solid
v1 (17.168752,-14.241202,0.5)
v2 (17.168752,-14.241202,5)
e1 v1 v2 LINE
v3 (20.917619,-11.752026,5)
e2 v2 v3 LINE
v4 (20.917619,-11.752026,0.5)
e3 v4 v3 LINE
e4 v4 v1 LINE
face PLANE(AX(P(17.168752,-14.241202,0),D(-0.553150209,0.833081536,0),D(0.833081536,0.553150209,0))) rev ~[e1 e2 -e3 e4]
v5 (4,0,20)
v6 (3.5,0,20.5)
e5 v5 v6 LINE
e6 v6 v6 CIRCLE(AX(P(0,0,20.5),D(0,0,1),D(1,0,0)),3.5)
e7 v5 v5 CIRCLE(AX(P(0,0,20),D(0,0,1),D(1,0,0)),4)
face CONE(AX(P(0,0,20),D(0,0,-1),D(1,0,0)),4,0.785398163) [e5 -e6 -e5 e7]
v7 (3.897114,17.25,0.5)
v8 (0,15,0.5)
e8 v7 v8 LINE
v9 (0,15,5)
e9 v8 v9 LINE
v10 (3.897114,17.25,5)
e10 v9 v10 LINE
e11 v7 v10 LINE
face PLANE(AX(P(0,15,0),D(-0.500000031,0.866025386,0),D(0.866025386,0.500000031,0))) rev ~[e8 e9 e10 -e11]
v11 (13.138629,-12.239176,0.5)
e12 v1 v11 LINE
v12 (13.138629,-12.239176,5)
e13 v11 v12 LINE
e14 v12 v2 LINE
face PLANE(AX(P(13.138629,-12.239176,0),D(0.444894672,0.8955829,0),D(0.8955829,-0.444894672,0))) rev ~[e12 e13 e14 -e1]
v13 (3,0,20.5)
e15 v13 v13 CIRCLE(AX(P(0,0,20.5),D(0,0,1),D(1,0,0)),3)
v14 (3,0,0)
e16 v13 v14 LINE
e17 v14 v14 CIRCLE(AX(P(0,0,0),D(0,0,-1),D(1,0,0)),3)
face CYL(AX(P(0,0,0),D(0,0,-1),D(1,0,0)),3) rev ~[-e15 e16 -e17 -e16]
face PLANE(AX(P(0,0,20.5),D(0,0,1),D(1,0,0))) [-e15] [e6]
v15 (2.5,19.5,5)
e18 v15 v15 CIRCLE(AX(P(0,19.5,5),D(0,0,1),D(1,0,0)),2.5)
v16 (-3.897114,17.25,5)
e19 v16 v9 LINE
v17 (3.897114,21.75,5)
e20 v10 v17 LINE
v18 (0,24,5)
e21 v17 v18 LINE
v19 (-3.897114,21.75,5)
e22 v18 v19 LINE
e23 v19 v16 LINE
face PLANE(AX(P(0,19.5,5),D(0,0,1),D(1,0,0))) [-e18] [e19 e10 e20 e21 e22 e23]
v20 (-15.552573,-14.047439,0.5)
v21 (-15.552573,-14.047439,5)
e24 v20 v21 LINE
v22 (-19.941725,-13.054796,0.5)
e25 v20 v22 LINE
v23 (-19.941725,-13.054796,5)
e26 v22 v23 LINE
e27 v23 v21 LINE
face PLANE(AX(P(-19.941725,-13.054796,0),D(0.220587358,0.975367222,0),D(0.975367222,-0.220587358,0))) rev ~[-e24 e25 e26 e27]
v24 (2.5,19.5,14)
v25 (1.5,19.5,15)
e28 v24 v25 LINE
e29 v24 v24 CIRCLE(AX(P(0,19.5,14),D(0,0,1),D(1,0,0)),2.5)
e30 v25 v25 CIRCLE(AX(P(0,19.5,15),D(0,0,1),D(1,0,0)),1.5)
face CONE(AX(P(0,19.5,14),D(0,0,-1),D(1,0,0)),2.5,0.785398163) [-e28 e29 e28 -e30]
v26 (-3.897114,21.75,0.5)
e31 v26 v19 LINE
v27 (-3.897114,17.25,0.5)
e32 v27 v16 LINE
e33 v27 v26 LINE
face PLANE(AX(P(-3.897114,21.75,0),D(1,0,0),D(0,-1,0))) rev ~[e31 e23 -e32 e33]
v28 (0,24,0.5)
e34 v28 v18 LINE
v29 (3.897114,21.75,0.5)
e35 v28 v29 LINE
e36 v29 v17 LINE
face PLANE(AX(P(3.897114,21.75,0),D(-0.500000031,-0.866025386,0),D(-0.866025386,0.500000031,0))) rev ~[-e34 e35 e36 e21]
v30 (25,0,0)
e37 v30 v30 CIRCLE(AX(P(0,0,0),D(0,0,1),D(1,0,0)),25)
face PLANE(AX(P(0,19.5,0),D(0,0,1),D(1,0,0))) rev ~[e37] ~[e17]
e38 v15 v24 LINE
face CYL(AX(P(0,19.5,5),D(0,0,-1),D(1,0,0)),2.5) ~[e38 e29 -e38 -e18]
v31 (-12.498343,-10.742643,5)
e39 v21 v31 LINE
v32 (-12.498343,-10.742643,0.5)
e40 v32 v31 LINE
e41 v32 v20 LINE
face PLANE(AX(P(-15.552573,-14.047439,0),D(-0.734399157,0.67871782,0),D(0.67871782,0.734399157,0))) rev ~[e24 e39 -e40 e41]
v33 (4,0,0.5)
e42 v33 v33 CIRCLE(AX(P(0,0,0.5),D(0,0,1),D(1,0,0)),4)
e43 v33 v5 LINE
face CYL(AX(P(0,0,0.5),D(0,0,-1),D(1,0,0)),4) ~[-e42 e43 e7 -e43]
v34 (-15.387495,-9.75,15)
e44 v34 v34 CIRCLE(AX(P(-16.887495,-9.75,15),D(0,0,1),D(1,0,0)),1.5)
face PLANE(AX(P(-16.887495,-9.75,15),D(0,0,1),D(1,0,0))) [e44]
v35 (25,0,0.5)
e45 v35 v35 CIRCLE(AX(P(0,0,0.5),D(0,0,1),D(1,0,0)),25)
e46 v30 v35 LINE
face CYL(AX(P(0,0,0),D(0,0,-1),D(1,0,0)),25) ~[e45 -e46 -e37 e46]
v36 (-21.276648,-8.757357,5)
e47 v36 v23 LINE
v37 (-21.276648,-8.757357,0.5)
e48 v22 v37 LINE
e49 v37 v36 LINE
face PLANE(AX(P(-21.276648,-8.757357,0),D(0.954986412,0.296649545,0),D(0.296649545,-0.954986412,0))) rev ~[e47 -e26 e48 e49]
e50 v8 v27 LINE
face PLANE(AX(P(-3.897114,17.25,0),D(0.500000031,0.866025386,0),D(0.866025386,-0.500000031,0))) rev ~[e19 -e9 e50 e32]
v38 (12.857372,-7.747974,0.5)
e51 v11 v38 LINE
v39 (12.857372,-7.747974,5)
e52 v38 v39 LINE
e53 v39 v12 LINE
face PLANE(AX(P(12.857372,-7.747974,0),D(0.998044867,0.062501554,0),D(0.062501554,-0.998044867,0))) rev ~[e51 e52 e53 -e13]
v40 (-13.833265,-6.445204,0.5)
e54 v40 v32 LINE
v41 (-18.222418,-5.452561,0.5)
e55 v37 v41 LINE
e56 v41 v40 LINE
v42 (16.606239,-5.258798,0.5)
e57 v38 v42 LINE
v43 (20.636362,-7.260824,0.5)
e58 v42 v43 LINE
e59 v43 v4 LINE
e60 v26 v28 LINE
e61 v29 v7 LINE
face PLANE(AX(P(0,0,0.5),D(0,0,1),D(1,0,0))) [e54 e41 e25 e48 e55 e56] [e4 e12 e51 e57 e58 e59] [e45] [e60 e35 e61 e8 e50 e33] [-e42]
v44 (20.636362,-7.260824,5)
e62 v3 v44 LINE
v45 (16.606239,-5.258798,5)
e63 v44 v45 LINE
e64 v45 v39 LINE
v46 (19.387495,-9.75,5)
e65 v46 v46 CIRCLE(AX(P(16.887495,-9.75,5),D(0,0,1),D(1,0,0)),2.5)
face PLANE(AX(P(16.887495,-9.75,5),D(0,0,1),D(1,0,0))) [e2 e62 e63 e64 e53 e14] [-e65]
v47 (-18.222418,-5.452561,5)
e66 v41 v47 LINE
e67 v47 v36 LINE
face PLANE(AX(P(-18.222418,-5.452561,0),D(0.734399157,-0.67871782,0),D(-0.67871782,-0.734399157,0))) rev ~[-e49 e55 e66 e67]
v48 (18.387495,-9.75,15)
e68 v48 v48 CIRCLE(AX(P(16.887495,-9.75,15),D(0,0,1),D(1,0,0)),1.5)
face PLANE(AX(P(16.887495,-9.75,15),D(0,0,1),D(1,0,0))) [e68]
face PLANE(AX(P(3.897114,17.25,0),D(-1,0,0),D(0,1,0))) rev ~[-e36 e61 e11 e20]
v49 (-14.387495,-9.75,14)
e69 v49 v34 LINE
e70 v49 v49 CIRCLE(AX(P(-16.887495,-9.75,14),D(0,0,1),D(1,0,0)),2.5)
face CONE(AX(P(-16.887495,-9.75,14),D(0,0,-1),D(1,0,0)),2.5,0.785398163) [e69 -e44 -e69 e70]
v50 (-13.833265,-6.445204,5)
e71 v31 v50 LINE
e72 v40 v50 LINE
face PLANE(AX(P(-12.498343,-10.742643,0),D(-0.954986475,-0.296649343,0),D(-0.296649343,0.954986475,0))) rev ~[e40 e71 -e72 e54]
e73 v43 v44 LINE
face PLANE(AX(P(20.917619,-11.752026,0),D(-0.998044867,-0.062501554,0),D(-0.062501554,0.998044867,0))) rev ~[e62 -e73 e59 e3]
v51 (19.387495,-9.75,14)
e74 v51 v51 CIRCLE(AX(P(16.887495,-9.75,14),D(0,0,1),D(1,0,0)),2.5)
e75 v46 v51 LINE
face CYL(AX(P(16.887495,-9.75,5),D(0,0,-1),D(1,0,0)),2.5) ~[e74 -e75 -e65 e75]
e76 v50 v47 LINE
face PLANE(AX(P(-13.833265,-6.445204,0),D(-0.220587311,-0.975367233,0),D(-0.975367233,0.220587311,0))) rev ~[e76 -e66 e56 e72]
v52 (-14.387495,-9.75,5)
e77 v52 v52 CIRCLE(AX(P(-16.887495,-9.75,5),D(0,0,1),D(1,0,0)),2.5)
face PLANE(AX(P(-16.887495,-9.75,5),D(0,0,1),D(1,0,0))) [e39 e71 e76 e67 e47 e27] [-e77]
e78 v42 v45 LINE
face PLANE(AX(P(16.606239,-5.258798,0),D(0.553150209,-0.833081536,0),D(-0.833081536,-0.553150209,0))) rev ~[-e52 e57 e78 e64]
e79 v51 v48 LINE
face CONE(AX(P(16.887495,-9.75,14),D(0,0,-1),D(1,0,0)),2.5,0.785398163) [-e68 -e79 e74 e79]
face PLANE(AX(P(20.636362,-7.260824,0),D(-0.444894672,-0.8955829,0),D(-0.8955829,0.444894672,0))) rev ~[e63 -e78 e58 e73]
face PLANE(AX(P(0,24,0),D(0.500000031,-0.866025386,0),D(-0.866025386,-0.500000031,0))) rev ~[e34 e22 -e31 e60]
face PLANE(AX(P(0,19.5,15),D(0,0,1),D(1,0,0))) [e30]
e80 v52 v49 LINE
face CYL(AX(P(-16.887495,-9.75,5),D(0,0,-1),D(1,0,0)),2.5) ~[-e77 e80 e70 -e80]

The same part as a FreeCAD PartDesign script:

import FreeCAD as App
import Part
import Sketcher
from FreeCAD import Vector
Q = App.Units.Quantity


def edges_at(feature, points):
    """Names of the edges that pass closest to the given points."""
    edges = feature.Shape.Edges
    near = lambda p: min(range(len(edges)), key=lambda i: edges[i].distToShape(Part.Vertex(*p))[0])
    return sorted({f"Edge{near(p) + 1}" for p in points})

doc = App.newDocument("Part")
body = doc.addObject("PartDesign::Body", "Body")

sketch1 = body.newObject("Sketcher::SketchObject", "Sketch")
sketch1.AttachmentSupport = (doc.getObject("XY_Plane"), [""])
sketch1.MapMode = "FlatFace"
sketch1.addGeometry(Part.Circle(Vector(0, 0, 0), Vector(0, 0, 1), 25), False)
sketch1.addConstraint([
    Sketcher.Constraint("Coincident", 0, 3, -1, 1),
    Sketcher.Constraint("Diameter", 0, Q("50 mm")),
])
pad1 = body.newObject("PartDesign::Pad", "Pad")
pad1.Profile = sketch1
pad1.Length = 0.5

sketch2 = body.newObject("Sketcher::SketchObject", "Sketch001")
sketch2.AttachmentSupport = (doc.getObject("XY_Plane"), [""])
sketch2.MapMode = "FlatFace"
sketch2.addGeometry([
    Part.LineSegment(Vector(0, 24, 0), Vector(-3.9, 21.8, 0)),
    Part.LineSegment(Vector(-3.9, 21.8, 0), Vector(-3.9, 17.2, 0)),
    Part.LineSegment(Vector(-3.9, 17.2, 0), Vector(0, 15, 0)),
    Part.LineSegment(Vector(0, 15, 0), Vector(3.9, 17.2, 0)),
    Part.LineSegment(Vector(3.9, 17.2, 0), Vector(3.9, 21.8, 0)),
    Part.LineSegment(Vector(3.9, 21.8, 0), Vector(0, 24, 0)),
    Part.LineSegment(Vector(16.6, -5.3, 0), Vector(12.9, -7.7, 0)),
    Part.LineSegment(Vector(12.9, -7.7, 0), Vector(13.1, -12.2, 0)),
    Part.LineSegment(Vector(13.1, -12.2, 0), Vector(17.2, -14.2, 0)),
    Part.LineSegment(Vector(17.2, -14.2, 0), Vector(20.9, -11.8, 0)),
    Part.LineSegment(Vector(20.9, -11.8, 0), Vector(20.6, -7.3, 0)),
    Part.LineSegment(Vector(20.6, -7.3, 0), Vector(16.6, -5.3, 0)),
    Part.LineSegment(Vector(-18.2, -5.5, 0), Vector(-21.3, -8.8, 0)),
    Part.LineSegment(Vector(-21.3, -8.8, 0), Vector(-19.9, -13.1, 0)),
    Part.LineSegment(Vector(-19.9, -13.1, 0), Vector(-15.6, -14, 0)),
    Part.LineSegment(Vector(-15.6, -14, 0), Vector(-12.5, -10.7, 0)),
    Part.LineSegment(Vector(-12.5, -10.7, 0), Vector(-13.8, -6.4, 0)),
    Part.LineSegment(Vector(-13.8, -6.4, 0), Vector(-18.2, -5.5, 0)),
], False)
sketch2.addConstraint([
    Sketcher.Constraint("Coincident", 0, 2, 1, 1),
    Sketcher.Constraint("Coincident", 1, 2, 2, 1),
    Sketcher.Constraint("Coincident", 2, 2, 3, 1),
    Sketcher.Constraint("Coincident", 3, 2, 4, 1),
    Sketcher.Constraint("Coincident", 4, 2, 5, 1),
    Sketcher.Constraint("Coincident", 5, 2, 0, 1),
    Sketcher.Constraint("Coincident", 6, 2, 7, 1),
    Sketcher.Constraint("Coincident", 7, 2, 8, 1),
    Sketcher.Constraint("Coincident", 8, 2, 9, 1),
    Sketcher.Constraint("Coincident", 9, 2, 10, 1),
    Sketcher.Constraint("Coincident", 10, 2, 11, 1),
    Sketcher.Constraint("Coincident", 11, 2, 6, 1),
    Sketcher.Constraint("Coincident", 12, 2, 13, 1),
    Sketcher.Constraint("Coincident", 13, 2, 14, 1),
    Sketcher.Constraint("Coincident", 14, 2, 15, 1),
    Sketcher.Constraint("Coincident", 15, 2, 16, 1),
    Sketcher.Constraint("Coincident", 16, 2, 17, 1),
    Sketcher.Constraint("Coincident", 17, 2, 12, 1),
    Sketcher.Constraint("Vertical", 1),
    Sketcher.Constraint("Vertical", 4),
    Sketcher.Constraint("Symmetric", 1, 2, 3, 2, -2),
    Sketcher.Constraint("PointOnObject", 2, 2, -2),
    Sketcher.Constraint("PointOnObject", 5, 2, -2),
    Sketcher.Constraint("Parallel", 0, 3),
    Sketcher.Constraint("Parallel", 2, 5),
    Sketcher.Constraint("Parallel", 6, 9),
    Sketcher.Constraint("Parallel", 7, 10),
    Sketcher.Constraint("Parallel", 8, 11),
    Sketcher.Constraint("Parallel", 12, 15),
    Sketcher.Constraint("Parallel", 13, 16),
    Sketcher.Constraint("Parallel", 14, 17),
    Sketcher.Constraint("Equal", 5, 6),
    Sketcher.Constraint("Equal", 6, 7),
    Sketcher.Constraint("Equal", 7, 8),
    Sketcher.Constraint("Equal", 8, 9),
    Sketcher.Constraint("Equal", 11, 12),
    Sketcher.Constraint("Equal", 12, 13),
    Sketcher.Constraint("Equal", 13, 14),
    Sketcher.Constraint("Equal", 14, 15),
    Sketcher.Constraint("Angle", 0, Q("-149.999998 deg")),
    Sketcher.Constraint("DistanceY", 1, 2, 1, 1, Q("4.5 mm")),
    Sketcher.Constraint("DistanceY", -1, 1, 2, 2, Q("15 mm")),
    Sketcher.Constraint("DistanceY", -1, 1, 5, 2, Q("24 mm")),
    Sketcher.Constraint("DistanceX", -1, 1, 7, 2, Q("13.138629 mm")),
    Sketcher.Constraint("DistanceX", -1, 1, 9, 2, Q("20.917619 mm")),
    Sketcher.Constraint("DistanceX", -1, 1, 10, 2, Q("20.636362 mm")),
    Sketcher.Constraint("DistanceX", -1, 1, 11, 2, Q("16.606239 mm")),
    Sketcher.Constraint("DistanceX", 12, 2, -1, 1, Q("21.276648 mm")),
    Sketcher.Constraint("DistanceY", 14, 2, -1, 1, Q("14.047439 mm")),
    Sketcher.Constraint("DistanceX", 17, 2, -1, 1, Q("18.222418 mm")),
    Sketcher.Constraint("DistanceY", 17, 2, -1, 1, Q("5.452561 mm")),
    Sketcher.Constraint("DistanceY", 7, 2, 12, 2, Q("3.481819 mm")),
    Sketcher.Constraint("DistanceY", 13, 2, 12, 2, Q("4.297439 mm")),
])
pad2 = body.newObject("PartDesign::Pad", "Pad001")
pad2.Profile = sketch2
pad2.Length = 5

sketch3 = body.newObject("Sketcher::SketchObject", "Sketch002")
sketch3.AttachmentSupport = (doc.getObject("XY_Plane"), [""])
sketch3.MapMode = "FlatFace"
sketch3.AttachmentOffset = App.Placement(Vector(0, 0, 5), App.Rotation())
sketch3.addGeometry([
    Part.Circle(Vector(0, 19.5, 0), Vector(0, 0, 1), 2.5),
    Part.Circle(Vector(16.9, -9.8, 0), Vector(0, 0, 1), 2.5),
    Part.Circle(Vector(-16.9, -9.8, 0), Vector(0, 0, 1), 2.5),
], False)
sketch3.addConstraint([
    Sketcher.Constraint("Equal", 0, 1),
    Sketcher.Constraint("Equal", 1, 2),
    Sketcher.Constraint("Symmetric", 1, 3, 2, 3, -2),
    Sketcher.Constraint("PointOnObject", 0, 3, -2),
    Sketcher.Constraint("Diameter", 0, Q("5 mm")),
    Sketcher.Constraint("DistanceY", -1, 1, 0, 3, Q("19.5 mm")),
    Sketcher.Constraint("DistanceY", 1, 3, -1, 1, Q("9.75 mm")),
    Sketcher.Constraint("DistanceX", 2, 3, 1, 3, Q("33.77499 mm")),
])
pad3 = body.newObject("PartDesign::Pad", "Pad002")
pad3.Profile = sketch3
pad3.Length = 10

sketch4 = body.newObject("Sketcher::SketchObject", "Sketch003")
sketch4.AttachmentSupport = (doc.getObject("XY_Plane"), [""])
sketch4.MapMode = "FlatFace"
sketch4.AttachmentOffset = App.Placement(Vector(0, 0, 0.5), App.Rotation())
sketch4.addGeometry([
    Part.Circle(Vector(0, 0, 0), Vector(0, 0, 1), 4),
    Part.Circle(Vector(0, 0, 0), Vector(0, 0, 1), 3),
], False)
sketch4.addConstraint([
    Sketcher.Constraint("Coincident", 0, 3, -1, 1),
    Sketcher.Constraint("Coincident", 1, 3, -1, 1),
    Sketcher.Constraint("Diameter", 0, Q("8 mm")),
    Sketcher.Constraint("Diameter", 1, Q("6 mm")),
])
pad4 = body.newObject("PartDesign::Pad", "Pad003")
pad4.Profile = sketch4
pad4.Length = 20

sketch5 = body.newObject("Sketcher::SketchObject", "Sketch004")
sketch5.AttachmentSupport = (doc.getObject("XY_Plane"), [""])
sketch5.MapMode = "FlatFace"
sketch5.addGeometry(Part.Circle(Vector(0, 0, 0), Vector(0, 0, 1), 3), False)
sketch5.addConstraint([
    Sketcher.Constraint("Coincident", 0, 3, -1, 1),
    Sketcher.Constraint("Diameter", 0, Q("6 mm")),
])
pocket1 = body.newObject("PartDesign::Pocket", "Pocket")
pocket1.Profile = sketch5
pocket1.Type = "ThroughAll"
pocket1.Reversed = True
doc.recompute()

chamfer = body.newObject("PartDesign::Chamfer", "Chamfer")
chamfer.Base = (pocket1, edges_at(pocket1, [(-19.387, -9.75, 15), (-2.5, 19.5, 15), (14.387, -9.75, 15)]))
chamfer.Size = 1
doc.recompute()

chamfer2 = body.newObject("PartDesign::Chamfer", "Chamfer001")
chamfer2.Base = (chamfer, edges_at(chamfer, [(-4, 0, 20.5)]))
chamfer2.Size = 0.5

doc.recompute()
